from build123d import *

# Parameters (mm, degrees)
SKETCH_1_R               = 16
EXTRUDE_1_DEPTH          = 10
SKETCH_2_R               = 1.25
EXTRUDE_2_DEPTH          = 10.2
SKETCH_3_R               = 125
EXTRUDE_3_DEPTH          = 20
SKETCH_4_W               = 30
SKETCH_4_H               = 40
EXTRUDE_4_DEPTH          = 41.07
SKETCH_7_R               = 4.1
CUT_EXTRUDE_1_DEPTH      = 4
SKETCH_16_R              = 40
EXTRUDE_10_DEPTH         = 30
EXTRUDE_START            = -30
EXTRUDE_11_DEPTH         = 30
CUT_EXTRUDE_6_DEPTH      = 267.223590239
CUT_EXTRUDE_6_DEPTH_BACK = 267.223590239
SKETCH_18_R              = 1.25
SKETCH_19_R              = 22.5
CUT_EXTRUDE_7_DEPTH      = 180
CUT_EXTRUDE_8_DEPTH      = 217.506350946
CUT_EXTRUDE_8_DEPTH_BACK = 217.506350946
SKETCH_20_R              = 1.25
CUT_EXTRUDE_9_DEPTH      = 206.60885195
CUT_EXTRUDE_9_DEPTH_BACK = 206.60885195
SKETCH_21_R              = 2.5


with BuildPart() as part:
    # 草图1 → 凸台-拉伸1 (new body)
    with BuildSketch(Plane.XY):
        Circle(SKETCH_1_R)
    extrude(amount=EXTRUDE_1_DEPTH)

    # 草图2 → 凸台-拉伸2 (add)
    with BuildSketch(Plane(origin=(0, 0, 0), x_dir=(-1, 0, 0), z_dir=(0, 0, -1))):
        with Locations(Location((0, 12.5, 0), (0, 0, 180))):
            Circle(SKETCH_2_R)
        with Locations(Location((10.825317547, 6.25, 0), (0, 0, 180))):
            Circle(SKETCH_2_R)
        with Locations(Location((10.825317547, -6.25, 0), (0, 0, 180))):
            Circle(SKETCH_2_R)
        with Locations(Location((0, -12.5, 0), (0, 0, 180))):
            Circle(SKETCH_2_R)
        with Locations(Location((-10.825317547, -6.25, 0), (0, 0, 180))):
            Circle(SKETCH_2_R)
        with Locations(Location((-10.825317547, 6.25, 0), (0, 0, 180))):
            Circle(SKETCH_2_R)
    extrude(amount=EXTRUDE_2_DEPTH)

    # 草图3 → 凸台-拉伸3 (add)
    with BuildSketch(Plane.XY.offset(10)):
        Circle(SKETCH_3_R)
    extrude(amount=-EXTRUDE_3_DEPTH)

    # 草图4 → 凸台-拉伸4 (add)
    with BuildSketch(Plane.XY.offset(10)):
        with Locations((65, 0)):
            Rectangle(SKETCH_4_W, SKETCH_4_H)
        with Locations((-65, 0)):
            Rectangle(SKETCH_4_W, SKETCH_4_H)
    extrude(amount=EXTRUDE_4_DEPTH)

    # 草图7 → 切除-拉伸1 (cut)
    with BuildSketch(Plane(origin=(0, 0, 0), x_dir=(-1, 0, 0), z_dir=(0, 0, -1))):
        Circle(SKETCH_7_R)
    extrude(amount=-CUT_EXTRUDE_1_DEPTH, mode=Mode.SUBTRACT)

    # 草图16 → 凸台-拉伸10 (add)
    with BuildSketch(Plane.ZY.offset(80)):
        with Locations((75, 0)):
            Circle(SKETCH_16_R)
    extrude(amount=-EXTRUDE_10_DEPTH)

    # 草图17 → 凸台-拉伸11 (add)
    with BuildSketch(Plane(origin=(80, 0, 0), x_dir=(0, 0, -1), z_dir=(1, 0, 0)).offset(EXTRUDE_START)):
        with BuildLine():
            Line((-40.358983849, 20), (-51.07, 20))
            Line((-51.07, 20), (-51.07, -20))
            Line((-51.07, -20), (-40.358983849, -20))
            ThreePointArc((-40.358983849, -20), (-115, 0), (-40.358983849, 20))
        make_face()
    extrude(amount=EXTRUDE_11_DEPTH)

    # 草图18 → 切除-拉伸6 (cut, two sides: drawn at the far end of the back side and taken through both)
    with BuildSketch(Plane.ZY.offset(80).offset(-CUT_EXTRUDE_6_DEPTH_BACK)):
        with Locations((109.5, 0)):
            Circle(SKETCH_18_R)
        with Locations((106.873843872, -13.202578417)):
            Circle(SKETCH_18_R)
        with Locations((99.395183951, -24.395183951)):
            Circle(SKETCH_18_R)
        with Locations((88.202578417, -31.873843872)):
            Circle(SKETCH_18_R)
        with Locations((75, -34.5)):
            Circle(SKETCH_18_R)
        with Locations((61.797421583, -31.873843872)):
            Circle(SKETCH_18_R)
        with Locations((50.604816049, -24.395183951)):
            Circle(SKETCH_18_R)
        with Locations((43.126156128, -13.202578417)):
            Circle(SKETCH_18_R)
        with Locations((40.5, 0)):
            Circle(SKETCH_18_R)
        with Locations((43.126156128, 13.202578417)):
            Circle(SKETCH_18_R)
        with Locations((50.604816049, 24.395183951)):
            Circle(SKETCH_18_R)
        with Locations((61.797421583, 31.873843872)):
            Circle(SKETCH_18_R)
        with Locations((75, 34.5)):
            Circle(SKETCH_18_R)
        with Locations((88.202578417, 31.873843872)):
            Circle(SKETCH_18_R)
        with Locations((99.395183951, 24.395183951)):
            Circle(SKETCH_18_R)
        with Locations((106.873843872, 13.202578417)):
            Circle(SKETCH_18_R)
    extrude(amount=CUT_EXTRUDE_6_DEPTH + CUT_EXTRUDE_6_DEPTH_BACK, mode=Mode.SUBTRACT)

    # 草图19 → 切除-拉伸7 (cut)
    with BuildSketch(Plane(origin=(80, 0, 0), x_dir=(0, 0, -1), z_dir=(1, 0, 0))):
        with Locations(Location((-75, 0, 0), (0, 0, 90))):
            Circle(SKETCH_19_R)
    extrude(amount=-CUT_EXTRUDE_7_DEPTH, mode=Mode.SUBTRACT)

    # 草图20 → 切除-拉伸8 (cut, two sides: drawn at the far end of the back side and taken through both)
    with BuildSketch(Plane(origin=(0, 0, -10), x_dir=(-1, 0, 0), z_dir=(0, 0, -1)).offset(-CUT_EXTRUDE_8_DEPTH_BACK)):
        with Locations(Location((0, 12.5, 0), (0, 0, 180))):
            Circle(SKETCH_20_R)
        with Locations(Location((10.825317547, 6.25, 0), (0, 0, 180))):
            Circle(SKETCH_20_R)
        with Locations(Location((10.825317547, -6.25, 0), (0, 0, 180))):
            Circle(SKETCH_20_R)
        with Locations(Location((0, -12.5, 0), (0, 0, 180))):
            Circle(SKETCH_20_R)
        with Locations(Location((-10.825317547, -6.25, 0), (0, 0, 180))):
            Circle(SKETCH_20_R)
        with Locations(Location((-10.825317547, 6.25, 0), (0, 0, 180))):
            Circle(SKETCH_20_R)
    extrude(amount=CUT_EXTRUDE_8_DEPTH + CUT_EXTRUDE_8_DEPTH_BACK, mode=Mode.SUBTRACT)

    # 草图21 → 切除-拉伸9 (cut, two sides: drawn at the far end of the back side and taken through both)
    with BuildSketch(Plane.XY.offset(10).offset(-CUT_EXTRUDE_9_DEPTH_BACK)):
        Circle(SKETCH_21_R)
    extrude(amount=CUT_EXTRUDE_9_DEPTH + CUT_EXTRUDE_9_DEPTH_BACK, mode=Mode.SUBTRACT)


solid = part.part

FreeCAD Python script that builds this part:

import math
import FreeCAD as App
import Part
import Sketcher
from FreeCAD import Vector


def add_polygon(sketch, points):
    """Adds a closed chain of lines whose ends are joined by coincident constraints."""
    first, n = sketch.GeometryCount, len(points)
    for a, b in zip(points, points[1:] + points[:1]):
        sketch.addGeometry(Part.LineSegment(App.Vector(*a, 0), App.Vector(*b, 0)), False)
    for i in range(n):
        sketch.addConstraint(Sketcher.Constraint("Coincident", first + i, 2, first + (i + 1) % n, 1))

doc = App.newDocument("Part")
body = doc.addObject("PartDesign::Body", "Body")

sketch1 = body.newObject("Sketcher::SketchObject", "Sketch")
sketch1.AttachmentSupport = (doc.getObject("XY_Plane"), [""])
sketch1.MapMode = "FlatFace"
sketch1.addGeometry(Part.Circle(Vector(0, 0, 0), Vector(0, 0, 1), 16), False)
sketch1.addConstraint([
    Sketcher.Constraint("Coincident", 0, 3, -1, 1),
    Sketcher.Constraint("Diameter", 0, 32.0),
])
pad1 = body.newObject("PartDesign::Pad", "Pad")
pad1.Profile = sketch1
pad1.Length = 10

sketch2 = body.newObject("Sketcher::SketchObject", "Sketch001")
sketch2.AttachmentSupport = (doc.getObject("XY_Plane"), [""])
sketch2.MapMode = "FlatFace"
sketch2.addGeometry([
    Part.Circle(Vector(0, 12.5, 0), Vector(0, 0, 1), 1.2),
    Part.Circle(Vector(-10.8, 6.2, 0), Vector(0, 0, 1), 1.2),
    Part.Circle(Vector(-10.8, -6.2, 0), Vector(0, 0, 1), 1.2),
    Part.Circle(Vector(0, -12.5, 0), Vector(0, 0, 1), 1.2),
    Part.Circle(Vector(10.8, -6.2, 0), Vector(0, 0, 1), 1.2),
    Part.Circle(Vector(10.8, 6.2, 0), Vector(0, 0, 1), 1.2),
], False)
sketch2.addConstraint([
    Sketcher.Constraint("Equal", 0, 1),
    Sketcher.Constraint("Equal", 1, 2),
    Sketcher.Constraint("Equal", 2, 3),
    Sketcher.Constraint("Equal", 3, 4),
    Sketcher.Constraint("Equal", 4, 5),
    Sketcher.Constraint("Symmetric", 0, 3, 3, 3, -1, 1),
    Sketcher.Constraint("Symmetric", 1, 3, 4, 3, -1, 1),
    Sketcher.Constraint("Symmetric", 2, 3, 5, 3, -1, 1),
    Sketcher.Constraint("Symmetric", 2, 3, 4, 3, -2),
    Sketcher.Constraint("PointOnObject", 0, 3, -2),
    Sketcher.Constraint("Diameter", 0, 2.5),
    Sketcher.Constraint("DistanceY", 3, 3, 0, 3, 25.0),
    Sketcher.Constraint("DistanceY", 2, 3, 1, 3, 12.5),
    Sketcher.Constraint("DistanceX", 1, 3, -1, 1, 10.825318),
])
pad2 = body.newObject("PartDesign::Pad", "Pad001")
pad2.Profile = sketch2
pad2.Length = 10.2
pad2.Reversed = True

sketch3 = body.newObject("Sketcher::SketchObject", "Sketch002")
sketch3.AttachmentSupport = (doc.getObject("XY_Plane"), [""])
sketch3.MapMode = "FlatFace"
sketch3.AttachmentOffset = App.Placement(Vector(0, 0, 10), App.Rotation())
sketch3.addGeometry(Part.Circle(Vector(0, 0, 0), Vector(0, 0, 1), 125), False)
sketch3.addConstraint([
    Sketcher.Constraint("Coincident", 0, 3, -1, 1),
    Sketcher.Constraint("Diameter", 0, 250.0),
])
pad3 = body.newObject("PartDesign::Pad", "Pad002")
pad3.Profile = sketch3
pad3.Length = 20
pad3.Reversed = True

sketch4 = body.newObject("Sketcher::SketchObject", "Sketch003")
sketch4.AttachmentSupport = (doc.getObject("XY_Plane"), [""])
sketch4.MapMode = "FlatFace"
sketch4.AttachmentOffset = App.Placement(Vector(0, 0, 10), App.Rotation())
add_polygon(sketch4, [(50, 20), (50, -20), (80, -20), (80, 20)])
add_polygon(sketch4, [(-80, 20), (-80, -20), (-50, -20), (-50, 20)])
sketch4.addConstraint([
    Sketcher.Constraint("Vertical", 0),
    Sketcher.Constraint("Horizontal", 1),
    Sketcher.Constraint("Vertical", 2),
    Sketcher.Constraint("Horizontal", 3),
    Sketcher.Constraint("Vertical", 4),
    Sketcher.Constraint("Horizontal", 5),
    Sketcher.Constraint("Vertical", 6),
    Sketcher.Constraint("Horizontal", 7),
    Sketcher.Constraint("Symmetric", 2, 2, 4, 2, -1, 1),
    Sketcher.Constraint("Symmetric", 0, 2, 6, 2, -1, 1),
    Sketcher.Constraint("Horizontal", 1, 2, 4, 2),
    Sketcher.Constraint("DistanceX", 1, 1, 1, 2, 30.0),
    Sketcher.Constraint("DistanceY", 0, 2, 0, 1, 40.0),
    Sketcher.Constraint("DistanceX", -1, 1, 0, 2, 50.0),
])
pad4 = body.newObject("PartDesign::Pad", "Pad003")
pad4.Profile = sketch4
pad4.Length = 41.07

sketch5 = body.newObject("Sketcher::SketchObject", "Sketch004")
sketch5.AttachmentSupport = (doc.getObject("XY_Plane"), [""])
sketch5.MapMode = "FlatFace"
sketch5.addGeometry(Part.Circle(Vector(0, 0, 0), Vector(0, 0, 1), 4.1), False)
sketch5.addConstraint([
    Sketcher.Constraint("Coincident", 0, 3, -1, 1),
    Sketcher.Constraint("Diameter", 0, 8.2),
])
pocket1 = body.newObject("PartDesign::Pocket", "Pocket")
pocket1.Profile = sketch5
pocket1.Length = 4
pocket1.Reversed = True

sketch6 = body.newObject("Sketcher::SketchObject", "Sketch005")
sketch6.AttachmentSupport = (doc.getObject("YZ_Plane"), [""])
sketch6.MapMode = "FlatFace"
sketch6.AttachmentOffset = App.Placement(Vector(0, 0, -80), App.Rotation())
sketch6.addGeometry(Part.Circle(Vector(0, 75, 0), Vector(0, 0, 1), 40), False)
sketch6.addConstraint([
    Sketcher.Constraint("PointOnObject", 0, 3, -2),
    Sketcher.Constraint("Diameter", 0, 80.0),
    Sketcher.Constraint("DistanceY", -1, 1, 0, 3, 75.0),
])
pad5 = body.newObject("PartDesign::Pad", "Pad004")
pad5.Profile = sketch6
pad5.Length = 30

sketch7 = body.newObject("Sketcher::SketchObject", "Sketch006")
sketch7.AttachmentSupport = (doc.getObject("YZ_Plane"), [""])
sketch7.MapMode = "FlatFace"
sketch7.AttachmentOffset = App.Placement(Vector(0, 0, 50), App.Rotation())
sketch7.addGeometry([
    Part.LineSegment(Vector(20, 51, 0), Vector(20, 40, 0)),
    Part.ArcOfCircle(Part.Circle(Vector(0, 75, 0), Vector(0, 0, 1), 40), math.radians(-60), math.radians(240)),
    Part.LineSegment(Vector(-20, 40, 0), Vector(-20, 51, 0)),
    Part.LineSegment(Vector(-20, 51, 0), Vector(20, 51, 0)),
], False)
sketch7.addConstraint([
    Sketcher.Constraint("Coincident", 0, 2, 1, 1),
    Sketcher.Constraint("Coincident", 1, 2, 2, 1),
    Sketcher.Constraint("Coincident", 2, 2, 3, 1),
    Sketcher.Constraint("Coincident", 3, 2, 0, 1),
    Sketcher.Constraint("Vertical", 0),
    Sketcher.Constraint("Vertical", 2),
    Sketcher.Constraint("Horizontal", 3),
    Sketcher.Constraint("Symmetric", 0, 2, 1, 2, -2),
    Sketcher.Constraint("Radius", 1, 40.0),
    Sketcher.Constraint("DistanceX", 3, 1, 3, 2, 40.0),
    Sketcher.Constraint("DistanceY", -1, 1, 1, 3, 75.0),
    Sketcher.Constraint("DistanceY", -1, 1, 2, 2, 51.07),
])
pad6 = body.newObject("PartDesign::Pad", "Pad005")
pad6.Profile = sketch7
pad6.Length = 30

sketch8 = body.newObject("Sketcher::SketchObject", "Sketch007")
sketch8.AttachmentSupport = (doc.getObject("YZ_Plane"), [""])
sketch8.MapMode = "FlatFace"
sketch8.AttachmentOffset = App.Placement(Vector(0, 0, -80), App.Rotation())
sketch8.addGeometry([
    Part.Circle(Vector(0, 109.5, 0), Vector(0, 0, 1), 1.2),
    Part.Circle(Vector(-13.2, 106.9, 0), Vector(0, 0, 1), 1.2),
    Part.Circle(Vector(-24.4, 99.4, 0), Vector(0, 0, 1), 1.2),
    Part.Circle(Vector(-31.9, 88.2, 0), Vector(0, 0, 1), 1.2),
    Part.Circle(Vector(-34.5, 75, 0), Vector(0, 0, 1), 1.2),
    Part.Circle(Vector(-31.9, 61.8, 0), Vector(0, 0, 1), 1.2),
    Part.Circle(Vector(-24.4, 50.6, 0), Vector(0, 0, 1), 1.2),
    Part.Circle(Vector(-13.2, 43.1, 0), Vector(0, 0, 1), 1.2),
    Part.Circle(Vector(0, 40.5, 0), Vector(0, 0, 1), 1.2),
    Part.Circle(Vector(13.2, 43.1, 0), Vector(0, 0, 1), 1.2),
    Part.Circle(Vector(24.4, 50.6, 0), Vector(0, 0, 1), 1.2),
    Part.Circle(Vector(31.9, 61.8, 0), Vector(0, 0, 1), 1.2),
    Part.Circle(Vector(34.5, 75, 0), Vector(0, 0, 1), 1.2),
    Part.Circle(Vector(31.9, 88.2, 0), Vector(0, 0, 1), 1.2),
    Part.Circle(Vector(24.4, 99.4, 0), Vector(0, 0, 1), 1.2),
    Part.Circle(Vector(13.2, 106.9, 0), Vector(0, 0, 1), 1.2),
], False)
sketch8.addConstraint([
    Sketcher.Constraint("Equal", 0, 1),
    Sketcher.Constraint("Equal", 1, 2),
    Sketcher.Constraint("Equal", 2, 3),
    Sketcher.Constraint("Equal", 3, 4),
    Sketcher.Constraint("Equal", 4, 5),
    Sketcher.Constraint("Equal", 5, 6),
    Sketcher.Constraint("Equal", 6, 7),
    Sketcher.Constraint("Equal", 7, 8),
    Sketcher.Constraint("Equal", 8, 9),
    Sketcher.Constraint("Equal", 9, 10),
    Sketcher.Constraint("Equal", 10, 11),
    Sketcher.Constraint("Equal", 11, 12),
    Sketcher.Constraint("Equal", 12, 13),
    Sketcher.Constraint("Equal", 13, 14),
    Sketcher.Constraint("Equal", 14, 15),
    Sketcher.Constraint("Symmetric", 7, 3, 9, 3, -2),
    Sketcher.Constraint("Symmetric", 6, 3, 10, 3, -2),
    Sketcher.Constraint("Symmetric", 5, 3, 11, 3, -2),
    Sketcher.Constraint("Symmetric", 4, 3, 12, 3, -2),
    Sketcher.Constraint("Symmetric", 3, 3, 13, 3, -2),
    Sketcher.Constraint("Symmetric", 2, 3, 14, 3, -2),
    Sketcher.Constraint("Symmetric", 1, 3, 15, 3, -2),
    Sketcher.Constraint("PointOnObject", 0, 3, -2),
    Sketcher.Constraint("PointOnObject", 8, 3, -2),
    Sketcher.Constraint("Vertical", 3, 3, 5, 3),
    Sketcher.Constraint("Vertical", 2, 3, 6, 3),
    Sketcher.Constraint("Vertical", 1, 3, 7, 3),
    Sketcher.Constraint("Diameter", 0, 2.5),
    Sketcher.Constraint("DistanceY", -1, 1, 4, 3, 75.0),
    Sketcher.Constraint("DistanceY", -1, 1, 0, 3, 109.5),
    Sketcher.Constraint("DistanceX", 4, 3, -1, 1, 34.5),
    Sketcher.Constraint("DistanceY", -1, 1, 8, 3, 40.5),
    Sketcher.Constraint("DistanceX", 1, 3, -1, 1, 13.202578),
    Sketcher.Constraint("DistanceY", -1, 1, 3, 3, 88.202578),
    Sketcher.Constraint("DistanceY", -1, 1, 5, 3, 61.797422),
    Sketcher.Constraint("DistanceY", 2, 3, 1, 3, 7.47866),
    Sketcher.Constraint("DistanceX", 3, 3, 2, 3, 7.47866),
    Sketcher.Constraint("DistanceY", 7, 3, 6, 3, 7.47866),
    Sketcher.Constraint("DistanceY", -1, 1, 1, 3, 106.873844),
    Sketcher.Constraint("DistanceX", 2, 3, -1, 1, 24.395184),
    Sketcher.Constraint("DistanceY", -1, 1, 6, 3, 50.604816),
])
pocket2 = body.newObject("PartDesign::Pocket", "Pocket001")
pocket2.Profile = sketch8
pocket2.Type = "ThroughAll"
pocket2.Midplane = True

sketch9 = body.newObject("Sketcher::SketchObject", "Sketch008")
sketch9.AttachmentSupport = (doc.getObject("YZ_Plane"), [""])
sketch9.MapMode = "FlatFace"
sketch9.AttachmentOffset = App.Placement(Vector(0, 0, 80), App.Rotation())
sketch9.addGeometry(Part.Circle(Vector(0, 75, 0), Vector(0, 0, 1), 22), False)
sketch9.addConstraint([
    Sketcher.Constraint("PointOnObject", 0, 3, -2),
    Sketcher.Constraint("Diameter", 0, 45.0),
    Sketcher.Constraint("DistanceY", -1, 1, 0, 3, 75.0),
])
pocket3 = body.newObject("PartDesign::Pocket", "Pocket002")
pocket3.Profile = sketch9
pocket3.Length = 180

sketch10 = body.newObject("Sketcher::SketchObject", "Sketch009")
sketch10.AttachmentSupport = (doc.getObject("XY_Plane"), [""])
sketch10.MapMode = "FlatFace"
sketch10.AttachmentOffset = App.Placement(Vector(0, 0, -10), App.Rotation())
sketch10.addGeometry([
    Part.Circle(Vector(0, 12.5, 0), Vector(0, 0, 1), 1.2),
    Part.Circle(Vector(-10.8, 6.2, 0), Vector(0, 0, 1), 1.2),
    Part.Circle(Vector(-10.8, -6.2, 0), Vector(0, 0, 1), 1.2),
    Part.Circle(Vector(0, -12.5, 0), Vector(0, 0, 1), 1.2),
    Part.Circle(Vector(10.8, -6.2, 0), Vector(0, 0, 1), 1.2),
    Part.Circle(Vector(10.8, 6.2, 0), Vector(0, 0, 1), 1.2),
], False)
sketch10.addConstraint([
    Sketcher.Constraint("Equal", 0, 1),
    Sketcher.Constraint("Equal", 1, 2),
    Sketcher.Constraint("Equal", 2, 3),
    Sketcher.Constraint("Equal", 3, 4),
    Sketcher.Constraint("Equal", 4, 5),
    Sketcher.Constraint("Symmetric", 0, 3, 3, 3, -1, 1),
    Sketcher.Constraint("Symmetric", 1, 3, 4, 3, -1, 1),
    Sketcher.Constraint("Symmetric", 2, 3, 5, 3, -1, 1),
    Sketcher.Constraint("Symmetric", 2, 3, 4, 3, -2),
    Sketcher.Constraint("PointOnObject", 0, 3, -2),
    Sketcher.Constraint("Diameter", 0, 2.5),
    Sketcher.Constraint("DistanceY", 3, 3, 0, 3, 25.0),
    Sketcher.Constraint("DistanceY", 2, 3, 1, 3, 12.5),
    Sketcher.Constraint("DistanceX", 1, 3, -1, 1, 10.825318),
])
pocket4 = body.newObject("PartDesign::Pocket", "Pocket003")
pocket4.Profile = sketch10
pocket4.Type = "ThroughAll"
pocket4.Midplane = True

sketch11 = body.newObject("Sketcher::SketchObject", "Sketch010")
sketch11.AttachmentSupport = (doc.getObject("XY_Plane"), [""])
sketch11.MapMode = "FlatFace"
sketch11.AttachmentOffset = App.Placement(Vector(0, 0, 10), App.Rotation())
sketch11.addGeometry(Part.Circle(Vector(0, 0, 0), Vector(0, 0, 1), 2.5), False)
sketch11.addConstraint([
    Sketcher.Constraint("Coincident", 0, 3, -1, 1),
    Sketcher.Constraint("Diameter", 0, 5.0),
])
pocket5 = body.newObject("PartDesign::Pocket", "Pocket004")
pocket5.Profile = sketch11
pocket5.Type = "ThroughAll"
pocket5.Midplane = True

doc.recompute()
